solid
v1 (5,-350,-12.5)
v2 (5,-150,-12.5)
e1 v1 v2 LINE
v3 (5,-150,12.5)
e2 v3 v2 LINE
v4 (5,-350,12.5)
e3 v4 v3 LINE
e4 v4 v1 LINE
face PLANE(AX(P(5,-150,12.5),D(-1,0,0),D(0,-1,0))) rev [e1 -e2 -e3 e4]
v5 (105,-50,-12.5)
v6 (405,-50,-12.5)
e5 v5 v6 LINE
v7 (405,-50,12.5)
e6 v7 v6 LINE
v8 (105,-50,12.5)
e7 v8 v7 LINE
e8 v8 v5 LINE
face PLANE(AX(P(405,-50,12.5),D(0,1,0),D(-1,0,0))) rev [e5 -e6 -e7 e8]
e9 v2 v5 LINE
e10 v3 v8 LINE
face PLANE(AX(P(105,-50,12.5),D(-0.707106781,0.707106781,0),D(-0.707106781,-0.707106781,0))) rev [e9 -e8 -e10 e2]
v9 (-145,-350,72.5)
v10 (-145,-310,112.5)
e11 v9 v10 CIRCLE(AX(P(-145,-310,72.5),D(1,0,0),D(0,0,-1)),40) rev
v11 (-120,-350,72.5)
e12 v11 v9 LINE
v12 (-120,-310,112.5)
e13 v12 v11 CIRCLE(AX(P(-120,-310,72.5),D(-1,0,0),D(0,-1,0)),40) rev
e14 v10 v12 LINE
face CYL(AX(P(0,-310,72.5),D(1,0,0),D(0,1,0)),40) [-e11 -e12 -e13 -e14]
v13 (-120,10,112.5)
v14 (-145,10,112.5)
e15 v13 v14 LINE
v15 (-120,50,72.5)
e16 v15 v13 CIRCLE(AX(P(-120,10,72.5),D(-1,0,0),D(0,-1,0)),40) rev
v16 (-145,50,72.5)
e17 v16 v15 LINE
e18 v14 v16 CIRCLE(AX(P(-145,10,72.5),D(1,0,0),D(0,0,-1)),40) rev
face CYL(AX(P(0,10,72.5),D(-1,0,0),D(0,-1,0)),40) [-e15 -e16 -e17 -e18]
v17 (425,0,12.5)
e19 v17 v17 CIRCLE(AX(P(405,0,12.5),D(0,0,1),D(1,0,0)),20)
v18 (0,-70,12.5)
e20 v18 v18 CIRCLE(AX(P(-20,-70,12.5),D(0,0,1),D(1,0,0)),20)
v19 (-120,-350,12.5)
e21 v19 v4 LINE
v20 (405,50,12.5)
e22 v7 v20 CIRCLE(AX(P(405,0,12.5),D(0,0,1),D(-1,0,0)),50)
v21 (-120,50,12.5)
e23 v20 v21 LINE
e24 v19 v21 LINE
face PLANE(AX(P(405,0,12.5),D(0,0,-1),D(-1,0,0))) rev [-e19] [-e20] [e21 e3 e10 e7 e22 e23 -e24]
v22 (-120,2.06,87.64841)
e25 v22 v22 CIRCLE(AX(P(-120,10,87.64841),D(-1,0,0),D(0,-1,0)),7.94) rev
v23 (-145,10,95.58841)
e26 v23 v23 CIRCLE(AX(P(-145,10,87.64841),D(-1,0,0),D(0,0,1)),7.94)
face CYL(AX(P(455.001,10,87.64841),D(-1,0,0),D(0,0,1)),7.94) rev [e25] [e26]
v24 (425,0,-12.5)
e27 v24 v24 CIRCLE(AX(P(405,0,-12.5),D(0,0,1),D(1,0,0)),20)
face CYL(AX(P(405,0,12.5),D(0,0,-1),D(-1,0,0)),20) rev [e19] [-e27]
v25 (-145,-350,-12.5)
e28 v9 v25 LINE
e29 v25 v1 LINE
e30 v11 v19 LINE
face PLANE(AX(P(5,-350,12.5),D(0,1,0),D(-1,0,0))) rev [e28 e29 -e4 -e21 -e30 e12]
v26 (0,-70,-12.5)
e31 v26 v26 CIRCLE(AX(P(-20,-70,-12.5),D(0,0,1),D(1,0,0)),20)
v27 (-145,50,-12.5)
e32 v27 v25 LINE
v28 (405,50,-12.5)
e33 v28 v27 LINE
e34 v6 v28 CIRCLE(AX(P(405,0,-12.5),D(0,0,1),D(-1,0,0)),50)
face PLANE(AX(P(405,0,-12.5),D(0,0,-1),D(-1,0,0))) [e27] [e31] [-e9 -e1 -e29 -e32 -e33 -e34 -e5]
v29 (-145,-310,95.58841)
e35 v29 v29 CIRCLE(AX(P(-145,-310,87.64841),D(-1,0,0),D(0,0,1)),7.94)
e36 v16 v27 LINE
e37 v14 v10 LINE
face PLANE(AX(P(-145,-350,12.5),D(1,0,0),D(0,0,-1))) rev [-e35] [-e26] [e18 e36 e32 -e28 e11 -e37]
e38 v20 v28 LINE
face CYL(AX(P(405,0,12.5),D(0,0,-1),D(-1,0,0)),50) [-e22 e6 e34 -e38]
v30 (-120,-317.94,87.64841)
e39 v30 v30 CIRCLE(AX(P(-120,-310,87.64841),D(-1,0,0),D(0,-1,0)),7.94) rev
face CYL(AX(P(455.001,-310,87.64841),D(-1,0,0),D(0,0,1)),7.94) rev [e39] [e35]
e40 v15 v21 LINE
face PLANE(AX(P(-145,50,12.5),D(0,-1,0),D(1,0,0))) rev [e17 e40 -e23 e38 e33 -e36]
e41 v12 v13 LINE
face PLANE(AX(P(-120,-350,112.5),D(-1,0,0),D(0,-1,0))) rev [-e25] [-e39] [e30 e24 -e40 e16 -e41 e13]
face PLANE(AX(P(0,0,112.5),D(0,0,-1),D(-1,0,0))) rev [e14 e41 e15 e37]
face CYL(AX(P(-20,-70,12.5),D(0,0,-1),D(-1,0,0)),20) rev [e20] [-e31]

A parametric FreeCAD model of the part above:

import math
import FreeCAD as App
import Part
import Sketcher
from FreeCAD import Vector


def edges_at(feature, points):
    """Names of the edges that pass closest to the given points."""
    edges = feature.Shape.Edges
    near = lambda p: min(range(len(edges)), key=lambda i: edges[i].distToShape(Part.Vertex(*p))[0])
    return sorted({f"Edge{near(p) + 1}" for p in points})


def add_polygon(sketch, points):
    """Adds a closed chain of lines whose ends are joined by coincident constraints."""
    first, n = sketch.GeometryCount, len(points)
    for a, b in zip(points, points[1:] + points[:1]):
        sketch.addGeometry(Part.LineSegment(App.Vector(*a, 0), App.Vector(*b, 0)), False)
    for i in range(n):
        sketch.addConstraint(Sketcher.Constraint("Coincident", first + i, 2, first + (i + 1) % n, 1))

doc = App.newDocument("Part")
body = doc.addObject("PartDesign::Body", "Body")

# Sketch on XY plane
sketch1 = body.newObject("Sketcher::SketchObject", "Sketch")
sketch1.AttachmentSupport = (doc.getObject("XY_Plane"), [""])
sketch1.MapMode = "FlatFace"
sketch1.addGeometry([
    Part.LineSegment(Vector(105, -50, 0), Vector(405, -50, 0)),  # 0
    Part.ArcOfCircle(Part.Circle(Vector(405, 0, 0), Vector(0, 0, 1), 50), math.radians(-90), math.radians(90)),  # 1
    Part.LineSegment(Vector(405, 50, 0), Vector(-145, 50, 0)),  # 2
    Part.LineSegment(Vector(-145, 50, 0), Vector(-145, -350, 0)),  # 3
    Part.LineSegment(Vector(-145, -350, 0), Vector(5, -350, 0)),  # 4
    Part.LineSegment(Vector(5, -350, 0), Vector(5, -150, 0)),  # 5
    Part.LineSegment(Vector(5, -150, 0), Vector(105, -50, 0)),  # 6
    Part.Circle(Vector(-20, -70, 0), Vector(0, 0, 1), 20),  # 7
    Part.Circle(Vector(405, 0, 0), Vector(0, 0, 1), 20),  # 8
], False)
sketch1.addConstraint([
    Sketcher.Constraint("Tangent", 0, 2, 1, 1),
    Sketcher.Constraint("Tangent", 1, 2, 2, 1),
    Sketcher.Constraint("Coincident", 2, 2, 3, 1),
    Sketcher.Constraint("Coincident", 3, 2, 4, 1),
    Sketcher.Constraint("Coincident", 4, 2, 5, 1),
    Sketcher.Constraint("Coincident", 5, 2, 6, 1),
    Sketcher.Constraint("Coincident", 6, 2, 0, 1),
    Sketcher.Constraint("Horizontal", 0),
    Sketcher.Constraint("Horizontal", 2),
    Sketcher.Constraint("Vertical", 3),
    Sketcher.Constraint("Horizontal", 4),
    Sketcher.Constraint("Vertical", 5),
    Sketcher.Constraint("Coincident", 8, 3, 1, 3),
    Sketcher.Constraint("Equal", 7, 8),
    Sketcher.Constraint("PointOnObject", 1, 3, -1),
    Sketcher.Constraint("Diameter", 7, 40.0),
    Sketcher.Constraint("Radius", 1, 50.0),
    Sketcher.Constraint("DistanceX", 0, 1, 0, 2, 300.0),
    Sketcher.Constraint("DistanceX", 2, 2, 2, 1, 550.0),
    Sketcher.Constraint("DistanceX", 4, 1, 4, 2, 150.0),
    Sketcher.Constraint("DistanceY", 3, 2, 3, 1, 400.0),
    Sketcher.Constraint("DistanceY", 5, 1, 5, 2, 200.0),
    Sketcher.Constraint("DistanceX", -1, 1, 1, 3, 405.0),
    Sketcher.Constraint("DistanceX", 7, 3, -1, 1, 20.0),
    Sketcher.Constraint("DistanceY", 7, 3, -1, 1, 70.0),
])
pad1 = body.newObject("PartDesign::Pad", "Pad")
pad1.Profile = sketch1
pad1.Length = 25
pad1.Midplane = True

# Sketch on XY plane
sketch2 = body.newObject("Sketcher::SketchObject", "Sketch001")
sketch2.AttachmentSupport = (doc.getObject("XY_Plane"), [""])
sketch2.MapMode = "FlatFace"
sketch2.AttachmentOffset = App.Placement(Vector(0, 0, 12.5), App.Rotation())
add_polygon(sketch2, [(-145, 50), (-145, -350), (-120, -350), (-120, 50)])  # lines 0-3
sketch2.addConstraint([
    Sketcher.Constraint("Vertical", 0),
    Sketcher.Constraint("Horizontal", 1),
    Sketcher.Constraint("Vertical", 2),
    Sketcher.Constraint("Horizontal", 3),
    Sketcher.Constraint("DistanceX", 1, 1, 1, 2, 25.0),
    Sketcher.Constraint("DistanceY", 0, 2, 0, 1, 400.0),
    Sketcher.Constraint("DistanceX", 0, 2, -1, 1, 145.0),
    Sketcher.Constraint("DistanceY", 0, 2, -1, 1, 350.0),
])
pad2 = body.newObject("PartDesign::Pad", "Pad001")
pad2.Profile = sketch2
pad2.Length = 100

# Sketch on YZ plane
sketch3 = body.newObject("Sketcher::SketchObject", "Sketch002")
sketch3.AttachmentSupport = (doc.getObject("YZ_Plane"), [""])
sketch3.MapMode = "FlatFace"
sketch3.AttachmentOffset = App.Placement(Vector(0, 0, -145), App.Rotation())
sketch3.addGeometry(Part.Circle(Vector(10, 87.64841, 0), Vector(0, 0, 1), 7.94), False)
sketch3.addConstraint([
    Sketcher.Constraint("Diameter", 0, 15.88),
    Sketcher.Constraint("DistanceX", -1, 1, 0, 3, 10.0),
    Sketcher.Constraint("DistanceY", -1, 1, 0, 3, 87.64841),
])
pocket1 = body.newObject("PartDesign::Pocket", "Pocket")
pocket1.Profile = sketch3
pocket1.Type = "UpToFirst"
pocket1.Reversed = True

# Sketch on YZ plane
sketch4 = body.newObject("Sketcher::SketchObject", "Sketch003")
sketch4.AttachmentSupport = (doc.getObject("YZ_Plane"), [""])
sketch4.MapMode = "FlatFace"
sketch4.AttachmentOffset = App.Placement(Vector(0, 0, -145), App.Rotation())
sketch4.addGeometry(Part.Circle(Vector(-310, 87.64841, 0), Vector(0, 0, 1), 7.94), False)
sketch4.addConstraint([
    Sketcher.Constraint("Diameter", 0, 15.88),
    Sketcher.Constraint("DistanceX", 0, 3, -1, 1, 310.0),
    Sketcher.Constraint("DistanceY", -1, 1, 0, 3, 87.64841),
])
pocket2 = body.newObject("PartDesign::Pocket", "Pocket001")
pocket2.Profile = sketch4
pocket2.Type = "UpToFirst"
pocket2.Reversed = True
doc.recompute()

fillet = body.newObject("PartDesign::Fillet", "Fillet")
fillet.Base = (pocket2, edges_at(pocket2, [(-132.5, -350, 112.5), (-132.5, 50, 112.5)]))
fillet.Radius = 40

doc.recompute()
